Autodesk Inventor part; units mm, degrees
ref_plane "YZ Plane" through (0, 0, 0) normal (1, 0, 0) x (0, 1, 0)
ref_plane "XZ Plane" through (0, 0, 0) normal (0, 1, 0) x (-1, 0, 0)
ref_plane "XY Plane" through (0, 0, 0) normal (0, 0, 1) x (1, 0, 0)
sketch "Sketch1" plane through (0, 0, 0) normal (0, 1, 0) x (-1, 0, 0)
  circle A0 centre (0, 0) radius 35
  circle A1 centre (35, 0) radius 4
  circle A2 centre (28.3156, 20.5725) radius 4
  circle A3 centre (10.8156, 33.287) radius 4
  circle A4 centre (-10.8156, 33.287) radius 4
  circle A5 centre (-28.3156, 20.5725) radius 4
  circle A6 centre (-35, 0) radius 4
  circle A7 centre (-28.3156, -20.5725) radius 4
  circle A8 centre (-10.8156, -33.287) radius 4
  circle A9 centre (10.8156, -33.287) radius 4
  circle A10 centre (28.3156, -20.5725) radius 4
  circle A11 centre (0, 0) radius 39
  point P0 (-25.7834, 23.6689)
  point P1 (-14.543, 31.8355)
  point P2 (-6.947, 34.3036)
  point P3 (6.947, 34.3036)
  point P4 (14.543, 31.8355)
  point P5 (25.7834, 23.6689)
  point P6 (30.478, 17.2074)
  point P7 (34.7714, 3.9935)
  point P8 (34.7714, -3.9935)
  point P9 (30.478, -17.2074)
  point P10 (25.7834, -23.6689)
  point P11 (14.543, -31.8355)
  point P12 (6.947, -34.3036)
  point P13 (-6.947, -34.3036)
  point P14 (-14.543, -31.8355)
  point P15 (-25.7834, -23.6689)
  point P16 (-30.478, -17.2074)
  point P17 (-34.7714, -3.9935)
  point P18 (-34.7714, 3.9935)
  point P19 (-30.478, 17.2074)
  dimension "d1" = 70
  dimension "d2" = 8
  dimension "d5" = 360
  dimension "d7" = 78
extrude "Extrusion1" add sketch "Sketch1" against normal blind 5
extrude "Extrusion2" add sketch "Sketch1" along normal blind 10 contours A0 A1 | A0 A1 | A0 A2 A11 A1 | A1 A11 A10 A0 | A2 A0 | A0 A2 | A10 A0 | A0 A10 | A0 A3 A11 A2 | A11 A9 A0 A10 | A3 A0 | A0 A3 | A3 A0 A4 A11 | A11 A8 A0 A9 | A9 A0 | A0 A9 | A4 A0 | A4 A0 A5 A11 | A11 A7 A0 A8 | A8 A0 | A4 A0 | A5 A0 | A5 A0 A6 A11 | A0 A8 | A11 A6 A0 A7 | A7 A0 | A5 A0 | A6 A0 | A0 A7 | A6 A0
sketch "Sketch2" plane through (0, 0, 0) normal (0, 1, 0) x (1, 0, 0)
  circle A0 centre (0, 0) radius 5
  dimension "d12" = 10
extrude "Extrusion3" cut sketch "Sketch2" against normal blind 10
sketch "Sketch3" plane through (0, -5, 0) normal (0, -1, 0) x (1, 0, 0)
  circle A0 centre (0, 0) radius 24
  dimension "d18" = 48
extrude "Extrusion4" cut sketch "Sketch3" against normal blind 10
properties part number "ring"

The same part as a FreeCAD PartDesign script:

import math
import FreeCAD as App
import Part
import Sketcher
from FreeCAD import Vector

doc = App.newDocument("Part")
body = doc.addObject("PartDesign::Body", "Body")

sketch1 = doc.addObject("Sketcher::SketchObject", "Sketch")
body.addObject(sketch1)
sketch1.AttachmentSupport = (doc.XZ_Plane, [""])
sketch1.MapMode = "FlatFace"
sketch1.addGeometry(Part.Circle(Vector(0, 0, 0), Vector(0, 0, 1), 39), False)
sketch1.addConstraint([
    Sketcher.Constraint("Coincident", 0, 3, -1, 1),
    Sketcher.Constraint("Diameter", 0, 78.0),
])
pad1 = doc.addObject("PartDesign::Pad", "Pad")
body.addObject(pad1)
pad1.Profile = sketch1
pad1.Length = 5

sketch2 = doc.addObject("Sketcher::SketchObject", "Sketch001")
body.addObject(sketch2)
sketch2.AttachmentSupport = (doc.XZ_Plane, [""])
sketch2.MapMode = "FlatFace"
sketch2.addGeometry([
    Part.Circle(Vector(0, 0, 0), Vector(0, 0, 1), 39),
    Part.ArcOfCircle(Part.Circle(Vector(-35, 0, 0), Vector(0, 0, 1), 4), math.radians(-87), math.radians(87)),
    Part.ArcOfCircle(Part.Circle(Vector(0, 0, 0), Vector(0, 0, 1), 35), math.radians(-173), math.radians(-151)),
    Part.ArcOfCircle(Part.Circle(Vector(-28.3, -20.6, 0), Vector(0, 0, 1), 4), math.radians(-51), math.radians(123)),
    Part.ArcOfCircle(Part.Circle(Vector(0, 0, 0), Vector(0, 0, 1), 35), math.radians(-137), math.radians(-115)),
    Part.ArcOfCircle(Part.Circle(Vector(-10.8, -33.3, 0), Vector(0, 0, 1), 4), math.radians(-15), math.radians(159)),
    Part.ArcOfCircle(Part.Circle(Vector(0, 0, 0), Vector(0, 0, 1), 35), math.radians(-101), math.radians(-79)),
    Part.ArcOfCircle(Part.Circle(Vector(10.8, -33.3, 0), Vector(0, 0, 1), 4), math.radians(21), math.radians(195)),
    Part.ArcOfCircle(Part.Circle(Vector(0, 0, 0), Vector(0, 0, 1), 35), math.radians(-65), math.radians(-43)),
    Part.ArcOfCircle(Part.Circle(Vector(28.3, -20.6, 0), Vector(0, 0, 1), 4), math.radians(57), math.radians(231)),
    Part.ArcOfCircle(Part.Circle(Vector(0, 0, 0), Vector(0, 0, 1), 35), math.radians(-29), math.radians(-7)),
    Part.ArcOfCircle(Part.Circle(Vector(35, 0, 0), Vector(0, 0, 1), 4), math.radians(93), math.radians(267)),
    Part.ArcOfCircle(Part.Circle(Vector(0, 0, 0), Vector(0, 0, 1), 35), math.radians(7), math.radians(29)),
    Part.ArcOfCircle(Part.Circle(Vector(28.3, 20.6, 0), Vector(0, 0, 1), 4), math.radians(129), math.radians(303)),
    Part.ArcOfCircle(Part.Circle(Vector(0, 0, 0), Vector(0, 0, 1), 35), math.radians(43), math.radians(65)),
    Part.ArcOfCircle(Part.Circle(Vector(10.8, 33.3, 0), Vector(0, 0, 1), 4), math.radians(165), math.radians(339)),
    Part.ArcOfCircle(Part.Circle(Vector(0, 0, 0), Vector(0, 0, 1), 35), math.radians(79), math.radians(101)),
    Part.ArcOfCircle(Part.Circle(Vector(-10.8, 33.3, 0), Vector(0, 0, 1), 4), math.radians(-159), math.radians(15)),
    Part.ArcOfCircle(Part.Circle(Vector(0, 0, 0), Vector(0, 0, 1), 35), math.radians(115), math.radians(137)),
    Part.ArcOfCircle(Part.Circle(Vector(-28.3, 20.6, 0), Vector(0, 0, 1), 4), math.radians(-123), math.radians(51)),
    Part.ArcOfCircle(Part.Circle(Vector(0, 0, 0), Vector(0, 0, 1), 35), math.radians(151), math.radians(173)),
], False)
sketch2.addConstraint([
    Sketcher.Constraint("Coincident", 1, 1, 2, 1),
    Sketcher.Constraint("Coincident", 2, 2, 3, 2),
    Sketcher.Constraint("Coincident", 3, 1, 4, 1),
    Sketcher.Constraint("Coincident", 4, 2, 5, 2),
    Sketcher.Constraint("Coincident", 5, 1, 6, 1),
    Sketcher.Constraint("Coincident", 6, 2, 7, 2),
    Sketcher.Constraint("Coincident", 7, 1, 8, 1),
    Sketcher.Constraint("Coincident", 8, 2, 9, 2),
    Sketcher.Constraint("Coincident", 9, 1, 10, 1),
    Sketcher.Constraint("Coincident", 10, 2, 11, 2),
    Sketcher.Constraint("Coincident", 11, 1, 12, 1),
    Sketcher.Constraint("Coincident", 12, 2, 13, 2),
    Sketcher.Constraint("Coincident", 13, 1, 14, 1),
    Sketcher.Constraint("Coincident", 14, 2, 15, 2),
    Sketcher.Constraint("Coincident", 15, 1, 16, 1),
    Sketcher.Constraint("Coincident", 16, 2, 17, 2),
    Sketcher.Constraint("Coincident", 17, 1, 18, 1),
    Sketcher.Constraint("Coincident", 18, 2, 19, 2),
    Sketcher.Constraint("Coincident", 19, 1, 20, 1),
    Sketcher.Constraint("Coincident", 20, 2, 1, 2),
    Sketcher.Constraint("Coincident", 0, 3, -1, 1),
    Sketcher.Constraint("Coincident", 2, 3, -1, 1),
    Sketcher.Constraint("Coincident", 4, 3, -1, 1),
    Sketcher.Constraint("Coincident", 6, 3, -1, 1),
    Sketcher.Constraint("Coincident", 8, 3, -1, 1),
    Sketcher.Constraint("Coincident", 10, 3, -1, 1),
    Sketcher.Constraint("Coincident", 12, 3, -1, 1),
    Sketcher.Constraint("Coincident", 14, 3, -1, 1),
    Sketcher.Constraint("Coincident", 16, 3, -1, 1),
    Sketcher.Constraint("Coincident", 18, 3, -1, 1),
    Sketcher.Constraint("Coincident", 20, 3, -1, 1),
    Sketcher.Constraint("Equal", 1, 3),
    Sketcher.Constraint("Equal", 2, 4),
    Sketcher.Constraint("Equal", 3, 5),
    Sketcher.Constraint("Equal", 4, 6),
    Sketcher.Constraint("Equal", 5, 7),
    Sketcher.Constraint("Equal", 6, 8),
    Sketcher.Constraint("Equal", 7, 9),
    Sketcher.Constraint("Equal", 8, 10),
    Sketcher.Constraint("Equal", 9, 11),
    Sketcher.Constraint("Equal", 10, 12),
    Sketcher.Constraint("Equal", 11, 13),
    Sketcher.Constraint("Equal", 12, 14),
    Sketcher.Constraint("Equal", 13, 15),
    Sketcher.Constraint("Equal", 14, 16),
    Sketcher.Constraint("Equal", 15, 17),
    Sketcher.Constraint("Equal", 16, 18),
    Sketcher.Constraint("Equal", 17, 19),
    Sketcher.Constraint("Equal", 18, 20),
    Sketcher.Constraint("Symmetric", 1, 3, 11, 3, -1, 1),
    Sketcher.Constraint("Symmetric", 3, 3, 13, 3, -1, 1),
    Sketcher.Constraint("Symmetric", 5, 3, 15, 3, -1, 1),
    Sketcher.Constraint("Symmetric", 7, 3, 17, 3, -1, 1),
    Sketcher.Constraint("Symmetric", 9, 3, 19, 3, -1, 1),
    Sketcher.Constraint("Symmetric", 5, 3, 7, 3, -2),
    Sketcher.Constraint("Symmetric", 3, 3, 9, 3, -2),
    Sketcher.Constraint("PointOnObject", 1, 3, -1),
    Sketcher.Constraint("Diameter", 0, 78.0),
    Sketcher.Constraint("Radius", 1, 4.0),
    Sketcher.Constraint("Radius", 2, 35.0),
    Sketcher.Constraint("DistanceX", 1, 3, -1, 1, 35.0),
    Sketcher.Constraint("DistanceX", 3, 3, 5, 3, 17.5),
    Sketcher.Constraint("DistanceX", 4, 2, 6, 2, 21.49),
    Sketcher.Constraint("DistanceY", 5, 3, -1, 1, 33.287),
    Sketcher.Constraint("DistanceX", 2, 2, -1, 1, 30.478),
])
pad2 = doc.addObject("PartDesign::Pad", "Pad001")
body.addObject(pad2)
pad2.Profile = sketch2
pad2.Length = 10
pad2.Reversed = True

sketch3 = doc.addObject("Sketcher::SketchObject", "Sketch002")
body.addObject(sketch3)
sketch3.AttachmentSupport = (doc.XZ_Plane, [""])
sketch3.MapMode = "FlatFace"
sketch3.addGeometry(Part.Circle(Vector(0, 0, 0), Vector(0, 0, 1), 5), False)
sketch3.addConstraint([
    Sketcher.Constraint("Coincident", 0, 3, -1, 1),
    Sketcher.Constraint("Diameter", 0, 10.0),
])
pocket1 = doc.addObject("PartDesign::Pocket", "Pocket")
body.addObject(pocket1)
pocket1.Profile = sketch3
pocket1.Length = 10
pocket1.Reversed = True

sketch4 = doc.addObject("Sketcher::SketchObject", "Sketch003")
body.addObject(sketch4)
sketch4.AttachmentSupport = (doc.XZ_Plane, [""])
sketch4.MapMode = "FlatFace"
sketch4.AttachmentOffset = App.Placement(Vector(0, 0, 5), App.Rotation())
sketch4.addGeometry(Part.Circle(Vector(0, 0, 0), Vector(0, 0, 1), 24), False)
sketch4.addConstraint([
    Sketcher.Constraint("Coincident", 0, 3, -1, 1),
    Sketcher.Constraint("Diameter", 0, 48.0),
])
pocket2 = doc.addObject("PartDesign::Pocket", "Pocket001")
body.addObject(pocket2)
pocket2.Profile = sketch4
pocket2.Length = 10

doc.recompute()
